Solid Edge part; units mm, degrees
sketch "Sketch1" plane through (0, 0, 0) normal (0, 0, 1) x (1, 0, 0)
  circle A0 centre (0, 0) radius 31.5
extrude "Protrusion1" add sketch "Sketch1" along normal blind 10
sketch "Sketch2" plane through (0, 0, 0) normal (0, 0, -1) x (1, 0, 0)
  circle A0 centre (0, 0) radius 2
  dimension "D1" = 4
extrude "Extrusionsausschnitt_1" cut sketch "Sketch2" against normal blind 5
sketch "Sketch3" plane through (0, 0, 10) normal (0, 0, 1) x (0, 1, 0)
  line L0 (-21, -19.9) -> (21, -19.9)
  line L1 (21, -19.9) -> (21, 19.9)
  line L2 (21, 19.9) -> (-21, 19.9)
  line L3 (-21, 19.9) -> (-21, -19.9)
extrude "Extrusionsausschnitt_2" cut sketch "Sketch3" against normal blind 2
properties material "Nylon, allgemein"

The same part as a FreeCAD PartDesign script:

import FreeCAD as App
import Part
import Sketcher
Q = App.Units.Quantity

doc = App.newDocument("Part")
params = doc.addObject("Spreadsheet::Sheet", "Params")
for row, (alias, value) in enumerate([
    ("sketch1_diameter", "63 mm"),
    ("pad1_length", "10 mm"),
    ("sketch2_diameter", "4 mm"),
    ("pocket1_length", "5 mm"),
    ("sketch3_height", "42 mm"),
    ("sketch3_width", "39.8 mm"),
    ("pocket2_length", "2 mm"),
], start=1):
    params.set(f"A{row}", alias)
    params.set(f"B{row}", "=" + value)
    params.setAlias(f"B{row}", alias)

body = doc.addObject("PartDesign::Body", "Body")

# Sketch on XY plane
sketch1 = body.newObject("Sketcher::SketchObject", "Sketch")
sketch1.AttachmentSupport = (doc.getObject("XY_Plane"), [""])
sketch1.MapMode = "FlatFace"
sketch1.addGeometry(Part.Circle(App.Vector(0, 0, 0), App.Vector(0, 0, 1), 31.5), False)
sketch1.addConstraint(Sketcher.Constraint("Coincident", 0, 3, -1, 1))
sketch1.addConstraint(Sketcher.Constraint("Diameter", 0, Q("63 mm")))
sketch1.setExpression("Constraints[1]", "Params.sketch1_diameter")
pad1 = body.newObject("PartDesign::Pad", "Pad")
pad1.Profile = sketch1
pad1.setExpression("Length", "Params.pad1_length")

# Sketch on XY plane
sketch2 = body.newObject("Sketcher::SketchObject", "Sketch001")
sketch2.AttachmentSupport = (doc.getObject("XY_Plane"), [""])
sketch2.MapMode = "FlatFace"
sketch2.addGeometry(Part.Circle(App.Vector(0, 0, 0), App.Vector(0, 0, 1), 2), False)
sketch2.addConstraint(Sketcher.Constraint("Coincident", 0, 3, -1, 1))
sketch2.addConstraint(Sketcher.Constraint("Diameter", 0, Q("4 mm")))
sketch2.setExpression("Constraints[1]", "Params.sketch2_diameter")
pocket1 = body.newObject("PartDesign::Pocket", "Pocket")
pocket1.Profile = sketch2
pocket1.setExpression("Length", "Params.pocket1_length")
pocket1.Reversed = True

# Sketch on XY plane
sketch3 = body.newObject("Sketcher::SketchObject", "Sketch002")
sketch3.AttachmentSupport = (doc.getObject("XY_Plane"), [""])
sketch3.MapMode = "FlatFace"
sketch3.AttachmentOffset = App.Placement(App.Vector(0, 0, 10), App.Rotation())
sketch3.addGeometry(Part.LineSegment(App.Vector(-19.9, -21, 0), App.Vector(19.9, -21, 0)), False)
sketch3.addGeometry(Part.LineSegment(App.Vector(19.9, -21, 0), App.Vector(19.9, 21, 0)), False)
sketch3.addGeometry(Part.LineSegment(App.Vector(19.9, 21, 0), App.Vector(-19.9, 21, 0)), False)
sketch3.addGeometry(Part.LineSegment(App.Vector(-19.9, 21, 0), App.Vector(-19.9, -21, 0)), False)
sketch3.addConstraint(Sketcher.Constraint("Coincident", 0, 2, 1, 1))
sketch3.addConstraint(Sketcher.Constraint("Coincident", 1, 2, 2, 1))
sketch3.addConstraint(Sketcher.Constraint("Coincident", 2, 2, 3, 1))
sketch3.addConstraint(Sketcher.Constraint("Coincident", 3, 2, 0, 1))
sketch3.addConstraint(Sketcher.Constraint("Horizontal", 0))
sketch3.addConstraint(Sketcher.Constraint("Vertical", 1))
sketch3.addConstraint(Sketcher.Constraint("Horizontal", 2))
sketch3.addConstraint(Sketcher.Constraint("Vertical", 3))
sketch3.addConstraint(Sketcher.Constraint("Symmetric", 0, 2, 2, 2, -1, 1))
sketch3.addConstraint(Sketcher.Constraint("DistanceY", 1, 1, 1, 2, Q("42 mm")))
sketch3.addConstraint(Sketcher.Constraint("DistanceX", 0, 1, 0, 2, Q("39.8 mm")))
sketch3.setExpression("Constraints[9]", "Params.sketch3_height")
sketch3.setExpression("Constraints[10]", "Params.sketch3_width")
pocket2 = body.newObject("PartDesign::Pocket", "Pocket001")
pocket2.Profile = sketch3
pocket2.setExpression("Length", "Params.pocket2_length")

doc.recompute()
